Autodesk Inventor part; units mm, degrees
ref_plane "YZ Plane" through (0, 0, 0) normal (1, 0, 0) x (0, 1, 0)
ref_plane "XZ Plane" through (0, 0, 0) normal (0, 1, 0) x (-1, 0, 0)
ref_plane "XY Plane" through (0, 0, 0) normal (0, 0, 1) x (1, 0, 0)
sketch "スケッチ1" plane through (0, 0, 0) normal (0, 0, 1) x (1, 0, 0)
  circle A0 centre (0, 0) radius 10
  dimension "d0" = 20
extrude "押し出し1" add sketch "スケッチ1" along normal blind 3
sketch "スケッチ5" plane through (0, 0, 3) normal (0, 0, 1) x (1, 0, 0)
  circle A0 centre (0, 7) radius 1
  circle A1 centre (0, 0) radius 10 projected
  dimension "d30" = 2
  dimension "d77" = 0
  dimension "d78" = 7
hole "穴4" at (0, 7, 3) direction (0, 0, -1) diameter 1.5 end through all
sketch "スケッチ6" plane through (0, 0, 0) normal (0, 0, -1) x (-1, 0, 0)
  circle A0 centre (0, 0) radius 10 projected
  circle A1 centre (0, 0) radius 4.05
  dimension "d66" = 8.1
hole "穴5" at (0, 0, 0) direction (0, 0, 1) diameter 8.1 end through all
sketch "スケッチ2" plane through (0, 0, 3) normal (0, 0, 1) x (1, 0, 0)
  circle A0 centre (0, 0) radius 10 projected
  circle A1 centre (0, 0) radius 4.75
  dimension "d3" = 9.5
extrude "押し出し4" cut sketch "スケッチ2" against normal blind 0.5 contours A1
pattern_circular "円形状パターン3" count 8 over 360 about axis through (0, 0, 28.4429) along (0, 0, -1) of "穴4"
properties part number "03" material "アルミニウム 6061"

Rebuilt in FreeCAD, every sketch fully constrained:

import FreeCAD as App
import Part
import Sketcher

V = App.Vector

doc = App.newDocument("Part")
body = doc.addObject("PartDesign::Body", "Body")

sketch1 = doc.addObject("Sketcher::SketchObject", "Sketch")
body.addObject(sketch1)
sketch1.AttachmentSupport = (doc.XY_Plane, [""])
sketch1.MapMode = "FlatFace"
sketch1.addGeometry(Part.Circle(V(0, 0, 0), V(0, 0, 1), 10), False)
sketch1.addConstraint(Sketcher.Constraint("Coincident", 0, 3, -1, 1))
sketch1.addConstraint(Sketcher.Constraint("Diameter", 0, 20.0))
pad1 = doc.addObject("PartDesign::Pad", "Pad")
body.addObject(pad1)
pad1.Profile = sketch1
pad1.Length = 3

sketch2 = doc.addObject("Sketcher::SketchObject", "Sketch001")
body.addObject(sketch2)
sketch2.AttachmentSupport = (doc.XY_Plane, [""])
sketch2.MapMode = "FlatFace"
sketch2.AttachmentOffset = App.Placement(V(0, 0, 3), App.Rotation())
sketch2.addGeometry(Part.Circle(V(0, 7, 0), V(0, 0, 1), 0.8), False)
sketch2.addConstraint(Sketcher.Constraint("PointOnObject", 0, 3, -2))
sketch2.addConstraint(Sketcher.Constraint("Diameter", 0, 1.5))
sketch2.addConstraint(Sketcher.Constraint("DistanceY", -1, 1, 0, 3, 7.0))
doc.recompute()
hole = doc.addObject("PartDesign::Hole", "Hole")
body.addObject(hole)
hole.Profile = sketch2
hole.ThreadType = "None"
hole.Diameter = 1.5
hole.DepthType = "ThroughAll"

sketch3 = doc.addObject("Sketcher::SketchObject", "Sketch002")
body.addObject(sketch3)
sketch3.AttachmentSupport = (doc.XY_Plane, [""])
sketch3.MapMode = "FlatFace"
sketch3.addGeometry(Part.Circle(V(0, 0, 0), V(0, 0, 1), 4), False)
sketch3.addConstraint(Sketcher.Constraint("Coincident", 0, 3, -1, 1))
sketch3.addConstraint(Sketcher.Constraint("Diameter", 0, 8.1))
doc.recompute()
hole2 = doc.addObject("PartDesign::Hole", "Hole001")
body.addObject(hole2)
hole2.Profile = sketch3
hole2.ThreadType = "None"
hole2.Diameter = 8.1
hole2.DepthType = "ThroughAll"
hole2.Reversed = True

sketch4 = doc.addObject("Sketcher::SketchObject", "Sketch003")
body.addObject(sketch4)
sketch4.AttachmentSupport = (doc.XY_Plane, [""])
sketch4.MapMode = "FlatFace"
sketch4.AttachmentOffset = App.Placement(V(0, 0, 3), App.Rotation())
sketch4.addGeometry(Part.Circle(V(0, 0, 0), V(0, 0, 1), 4.8), False)
sketch4.addConstraint(Sketcher.Constraint("Coincident", 0, 3, -1, 1))
sketch4.addConstraint(Sketcher.Constraint("Diameter", 0, 9.5))
pocket1 = doc.addObject("PartDesign::Pocket", "Pocket")
body.addObject(pocket1)
pocket1.Profile = sketch4
pocket1.Length = 0.5
doc.recompute()

polarpattern = doc.addObject("PartDesign::PolarPattern", "PolarPattern")
body.addObject(polarpattern)
polarpattern.Originals = [hole]
polarpattern.Axis = (doc.Z_Axis, [""])
polarpattern.Angle = 360
polarpattern.Occurrences = 8
body.Tip = polarpattern

doc.recompute()
